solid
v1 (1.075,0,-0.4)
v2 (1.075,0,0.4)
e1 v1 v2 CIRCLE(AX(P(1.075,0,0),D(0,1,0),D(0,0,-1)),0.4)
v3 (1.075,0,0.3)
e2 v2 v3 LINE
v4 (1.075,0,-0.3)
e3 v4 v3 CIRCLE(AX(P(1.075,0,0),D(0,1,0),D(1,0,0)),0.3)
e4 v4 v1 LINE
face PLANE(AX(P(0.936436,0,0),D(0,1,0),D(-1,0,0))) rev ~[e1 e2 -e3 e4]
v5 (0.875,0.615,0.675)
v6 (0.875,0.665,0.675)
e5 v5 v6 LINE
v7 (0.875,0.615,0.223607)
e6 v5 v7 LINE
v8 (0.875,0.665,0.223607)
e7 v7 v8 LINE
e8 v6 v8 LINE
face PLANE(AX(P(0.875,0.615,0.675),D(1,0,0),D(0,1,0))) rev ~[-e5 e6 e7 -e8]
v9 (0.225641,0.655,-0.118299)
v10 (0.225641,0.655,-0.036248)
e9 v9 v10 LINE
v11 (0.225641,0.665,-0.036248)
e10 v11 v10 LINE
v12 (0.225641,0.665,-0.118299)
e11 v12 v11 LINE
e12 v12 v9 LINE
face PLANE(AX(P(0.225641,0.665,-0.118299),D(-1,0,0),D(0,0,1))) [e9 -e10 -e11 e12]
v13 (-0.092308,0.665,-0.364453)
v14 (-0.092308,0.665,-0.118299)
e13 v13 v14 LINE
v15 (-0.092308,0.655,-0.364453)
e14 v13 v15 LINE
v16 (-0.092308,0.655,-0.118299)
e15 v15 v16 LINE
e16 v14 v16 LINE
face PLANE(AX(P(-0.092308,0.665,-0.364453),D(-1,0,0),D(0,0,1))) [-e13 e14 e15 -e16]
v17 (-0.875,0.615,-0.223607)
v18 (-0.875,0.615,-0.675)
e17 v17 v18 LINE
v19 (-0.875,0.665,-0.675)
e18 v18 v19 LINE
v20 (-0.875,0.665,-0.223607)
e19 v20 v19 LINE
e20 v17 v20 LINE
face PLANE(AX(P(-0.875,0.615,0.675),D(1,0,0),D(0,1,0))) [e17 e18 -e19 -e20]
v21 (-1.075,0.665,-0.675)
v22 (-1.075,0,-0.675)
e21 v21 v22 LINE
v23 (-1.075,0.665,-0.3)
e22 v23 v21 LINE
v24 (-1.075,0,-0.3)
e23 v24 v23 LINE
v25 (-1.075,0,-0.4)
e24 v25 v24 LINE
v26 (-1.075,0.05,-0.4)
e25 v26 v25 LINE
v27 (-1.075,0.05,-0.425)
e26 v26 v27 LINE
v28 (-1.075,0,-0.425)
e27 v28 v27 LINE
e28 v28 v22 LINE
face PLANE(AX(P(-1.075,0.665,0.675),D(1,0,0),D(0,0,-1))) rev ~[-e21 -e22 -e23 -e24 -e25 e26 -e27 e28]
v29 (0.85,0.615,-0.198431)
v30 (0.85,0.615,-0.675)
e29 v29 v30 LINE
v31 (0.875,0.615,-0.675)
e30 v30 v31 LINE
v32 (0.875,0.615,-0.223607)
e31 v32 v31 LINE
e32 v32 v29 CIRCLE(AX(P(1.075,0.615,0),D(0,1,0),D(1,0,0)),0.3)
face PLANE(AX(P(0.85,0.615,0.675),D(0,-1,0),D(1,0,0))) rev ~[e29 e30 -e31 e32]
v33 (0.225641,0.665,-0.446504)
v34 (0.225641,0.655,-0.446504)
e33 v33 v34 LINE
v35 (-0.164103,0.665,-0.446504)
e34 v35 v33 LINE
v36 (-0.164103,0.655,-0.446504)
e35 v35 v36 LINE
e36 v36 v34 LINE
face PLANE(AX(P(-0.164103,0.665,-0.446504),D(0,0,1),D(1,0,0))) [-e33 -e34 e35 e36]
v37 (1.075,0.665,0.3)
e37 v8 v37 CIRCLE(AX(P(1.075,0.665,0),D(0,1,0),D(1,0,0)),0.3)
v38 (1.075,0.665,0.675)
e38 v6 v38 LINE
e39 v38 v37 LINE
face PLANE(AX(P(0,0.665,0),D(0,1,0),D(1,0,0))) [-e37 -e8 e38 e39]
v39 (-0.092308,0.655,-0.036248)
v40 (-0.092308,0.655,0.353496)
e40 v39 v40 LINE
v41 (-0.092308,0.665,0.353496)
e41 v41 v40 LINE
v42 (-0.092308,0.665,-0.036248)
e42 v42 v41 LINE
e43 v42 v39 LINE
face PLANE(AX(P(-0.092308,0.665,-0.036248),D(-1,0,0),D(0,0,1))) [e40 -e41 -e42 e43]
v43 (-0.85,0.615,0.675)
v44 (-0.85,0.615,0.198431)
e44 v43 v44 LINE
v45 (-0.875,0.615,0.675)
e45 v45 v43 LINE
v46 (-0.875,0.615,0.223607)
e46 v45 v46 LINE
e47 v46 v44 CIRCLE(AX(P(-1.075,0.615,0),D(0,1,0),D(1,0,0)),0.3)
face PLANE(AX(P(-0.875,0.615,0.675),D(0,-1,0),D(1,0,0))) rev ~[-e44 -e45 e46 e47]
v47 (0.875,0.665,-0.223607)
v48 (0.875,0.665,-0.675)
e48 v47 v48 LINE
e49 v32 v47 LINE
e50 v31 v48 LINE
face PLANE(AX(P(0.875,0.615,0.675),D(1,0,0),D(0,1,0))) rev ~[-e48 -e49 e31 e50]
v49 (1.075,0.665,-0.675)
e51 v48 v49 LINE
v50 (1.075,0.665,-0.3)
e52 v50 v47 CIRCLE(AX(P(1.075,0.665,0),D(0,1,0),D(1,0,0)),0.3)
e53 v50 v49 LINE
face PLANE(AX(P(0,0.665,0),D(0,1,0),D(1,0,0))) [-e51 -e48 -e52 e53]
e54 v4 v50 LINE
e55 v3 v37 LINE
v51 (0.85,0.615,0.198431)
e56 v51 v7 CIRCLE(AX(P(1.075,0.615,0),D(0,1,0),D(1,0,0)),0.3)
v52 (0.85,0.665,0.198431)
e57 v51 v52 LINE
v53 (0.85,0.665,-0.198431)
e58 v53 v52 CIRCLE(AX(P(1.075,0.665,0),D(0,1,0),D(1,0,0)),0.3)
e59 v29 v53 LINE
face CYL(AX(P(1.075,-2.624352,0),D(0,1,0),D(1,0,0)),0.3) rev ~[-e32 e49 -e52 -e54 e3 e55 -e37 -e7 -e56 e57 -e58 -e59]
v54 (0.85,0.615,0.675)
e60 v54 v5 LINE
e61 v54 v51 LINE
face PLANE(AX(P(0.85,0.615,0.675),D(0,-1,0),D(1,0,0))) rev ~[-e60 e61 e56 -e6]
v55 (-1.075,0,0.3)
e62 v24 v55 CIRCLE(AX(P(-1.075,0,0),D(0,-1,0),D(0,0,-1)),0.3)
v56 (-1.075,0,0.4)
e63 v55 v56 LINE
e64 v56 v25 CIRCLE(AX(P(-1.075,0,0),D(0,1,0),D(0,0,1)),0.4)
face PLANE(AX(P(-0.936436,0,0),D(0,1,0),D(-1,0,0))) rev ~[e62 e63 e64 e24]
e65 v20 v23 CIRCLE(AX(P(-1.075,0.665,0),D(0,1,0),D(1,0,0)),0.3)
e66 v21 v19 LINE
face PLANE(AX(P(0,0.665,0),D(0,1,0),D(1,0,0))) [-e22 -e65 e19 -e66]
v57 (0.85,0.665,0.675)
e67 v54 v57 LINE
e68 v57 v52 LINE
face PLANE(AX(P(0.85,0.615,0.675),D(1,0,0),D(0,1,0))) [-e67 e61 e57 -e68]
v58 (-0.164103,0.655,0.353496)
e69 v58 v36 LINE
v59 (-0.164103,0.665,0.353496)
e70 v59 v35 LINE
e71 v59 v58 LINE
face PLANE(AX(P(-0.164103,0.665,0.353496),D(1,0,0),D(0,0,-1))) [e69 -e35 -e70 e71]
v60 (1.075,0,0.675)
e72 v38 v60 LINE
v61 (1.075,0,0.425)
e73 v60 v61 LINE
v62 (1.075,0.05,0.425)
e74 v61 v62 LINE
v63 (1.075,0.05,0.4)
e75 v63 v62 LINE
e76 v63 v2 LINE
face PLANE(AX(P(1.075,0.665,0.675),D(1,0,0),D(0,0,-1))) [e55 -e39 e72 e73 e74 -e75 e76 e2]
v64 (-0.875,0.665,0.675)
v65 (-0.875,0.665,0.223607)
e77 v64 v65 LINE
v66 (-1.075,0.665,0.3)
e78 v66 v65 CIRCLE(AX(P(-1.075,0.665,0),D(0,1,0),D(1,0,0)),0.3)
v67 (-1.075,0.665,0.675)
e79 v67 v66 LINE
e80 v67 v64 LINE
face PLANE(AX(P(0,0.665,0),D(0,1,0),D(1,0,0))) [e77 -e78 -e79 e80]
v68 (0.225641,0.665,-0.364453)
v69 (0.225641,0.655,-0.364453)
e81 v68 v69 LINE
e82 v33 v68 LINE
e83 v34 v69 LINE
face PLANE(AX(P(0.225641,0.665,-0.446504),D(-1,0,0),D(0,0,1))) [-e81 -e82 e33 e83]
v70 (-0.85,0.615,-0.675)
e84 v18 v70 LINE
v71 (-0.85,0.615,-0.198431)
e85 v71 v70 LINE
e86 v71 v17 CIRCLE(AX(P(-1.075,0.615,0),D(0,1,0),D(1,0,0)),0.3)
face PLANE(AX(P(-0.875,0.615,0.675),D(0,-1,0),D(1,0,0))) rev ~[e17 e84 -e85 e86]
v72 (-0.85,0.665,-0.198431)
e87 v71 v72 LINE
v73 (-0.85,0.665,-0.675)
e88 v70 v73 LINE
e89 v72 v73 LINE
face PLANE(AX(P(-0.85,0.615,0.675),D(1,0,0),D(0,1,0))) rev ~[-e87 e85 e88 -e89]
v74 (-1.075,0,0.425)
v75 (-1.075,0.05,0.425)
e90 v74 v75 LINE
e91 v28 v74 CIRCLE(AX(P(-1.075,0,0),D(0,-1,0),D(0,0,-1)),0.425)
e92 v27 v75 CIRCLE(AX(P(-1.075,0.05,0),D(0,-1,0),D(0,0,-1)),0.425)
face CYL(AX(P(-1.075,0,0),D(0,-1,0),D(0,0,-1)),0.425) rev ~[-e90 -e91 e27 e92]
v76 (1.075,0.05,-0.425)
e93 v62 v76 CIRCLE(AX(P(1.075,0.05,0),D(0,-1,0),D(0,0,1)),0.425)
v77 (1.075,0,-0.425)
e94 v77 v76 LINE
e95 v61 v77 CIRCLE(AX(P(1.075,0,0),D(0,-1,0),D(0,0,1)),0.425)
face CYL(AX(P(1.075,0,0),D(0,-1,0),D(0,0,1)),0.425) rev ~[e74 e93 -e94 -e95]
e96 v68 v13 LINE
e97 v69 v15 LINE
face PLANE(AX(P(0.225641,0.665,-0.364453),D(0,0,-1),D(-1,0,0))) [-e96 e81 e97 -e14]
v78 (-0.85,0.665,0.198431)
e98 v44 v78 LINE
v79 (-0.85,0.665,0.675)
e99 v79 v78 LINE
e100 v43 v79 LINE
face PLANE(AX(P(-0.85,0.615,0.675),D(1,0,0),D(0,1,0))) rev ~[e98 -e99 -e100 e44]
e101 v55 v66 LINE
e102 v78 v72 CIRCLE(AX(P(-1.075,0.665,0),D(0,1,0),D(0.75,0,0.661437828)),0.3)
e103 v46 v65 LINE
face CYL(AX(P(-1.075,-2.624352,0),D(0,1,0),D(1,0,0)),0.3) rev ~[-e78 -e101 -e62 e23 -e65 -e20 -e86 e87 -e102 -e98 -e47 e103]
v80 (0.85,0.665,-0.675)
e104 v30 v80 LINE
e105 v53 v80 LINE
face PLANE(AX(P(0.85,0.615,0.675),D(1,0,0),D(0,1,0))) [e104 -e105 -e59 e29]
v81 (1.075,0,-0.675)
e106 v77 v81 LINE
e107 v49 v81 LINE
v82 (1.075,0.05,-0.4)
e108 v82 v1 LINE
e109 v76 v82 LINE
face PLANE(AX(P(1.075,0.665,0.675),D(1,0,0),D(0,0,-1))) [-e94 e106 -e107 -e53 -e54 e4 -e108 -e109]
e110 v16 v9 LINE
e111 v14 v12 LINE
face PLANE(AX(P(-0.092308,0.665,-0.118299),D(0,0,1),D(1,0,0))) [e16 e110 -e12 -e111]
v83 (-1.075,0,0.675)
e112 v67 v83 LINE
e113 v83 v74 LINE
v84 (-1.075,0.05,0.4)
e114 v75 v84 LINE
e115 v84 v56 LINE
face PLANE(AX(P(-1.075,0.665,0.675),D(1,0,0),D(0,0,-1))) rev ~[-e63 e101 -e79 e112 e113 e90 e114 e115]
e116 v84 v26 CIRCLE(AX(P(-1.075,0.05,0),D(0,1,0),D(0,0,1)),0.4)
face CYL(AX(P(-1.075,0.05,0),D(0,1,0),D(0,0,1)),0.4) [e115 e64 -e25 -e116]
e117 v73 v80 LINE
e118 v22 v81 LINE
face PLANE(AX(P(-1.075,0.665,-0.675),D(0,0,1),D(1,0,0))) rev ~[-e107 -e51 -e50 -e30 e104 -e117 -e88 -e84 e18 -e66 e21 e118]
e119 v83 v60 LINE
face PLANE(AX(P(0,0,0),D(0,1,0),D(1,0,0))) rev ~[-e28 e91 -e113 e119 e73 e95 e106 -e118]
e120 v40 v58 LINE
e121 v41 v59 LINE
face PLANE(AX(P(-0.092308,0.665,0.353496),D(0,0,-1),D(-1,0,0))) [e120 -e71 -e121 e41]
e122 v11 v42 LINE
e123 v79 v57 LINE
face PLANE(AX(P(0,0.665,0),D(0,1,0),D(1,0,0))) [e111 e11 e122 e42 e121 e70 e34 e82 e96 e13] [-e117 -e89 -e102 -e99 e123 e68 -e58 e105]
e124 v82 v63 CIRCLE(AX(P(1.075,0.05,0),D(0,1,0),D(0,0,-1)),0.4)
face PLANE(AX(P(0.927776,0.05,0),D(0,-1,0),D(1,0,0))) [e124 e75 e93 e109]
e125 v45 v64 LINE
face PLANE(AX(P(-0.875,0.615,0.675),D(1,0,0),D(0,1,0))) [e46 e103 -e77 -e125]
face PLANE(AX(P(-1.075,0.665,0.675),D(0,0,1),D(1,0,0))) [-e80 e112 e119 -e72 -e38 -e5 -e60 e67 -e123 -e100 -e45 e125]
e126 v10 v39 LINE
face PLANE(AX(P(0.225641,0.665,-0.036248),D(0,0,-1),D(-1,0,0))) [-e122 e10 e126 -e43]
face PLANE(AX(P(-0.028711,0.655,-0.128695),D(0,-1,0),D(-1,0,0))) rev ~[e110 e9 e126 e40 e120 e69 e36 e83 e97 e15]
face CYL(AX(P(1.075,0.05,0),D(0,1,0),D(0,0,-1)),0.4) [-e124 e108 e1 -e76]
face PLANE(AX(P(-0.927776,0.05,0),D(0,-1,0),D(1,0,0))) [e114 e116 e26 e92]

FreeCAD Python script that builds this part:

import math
import FreeCAD as App
import Part
import Sketcher
Q = App.Units.Quantity

doc = App.newDocument("Part")
body = doc.addObject("PartDesign::Body", "Body")

# Sketch on XZ plane
sketch1 = body.newObject("Sketcher::SketchObject", "Sketch")
sketch1.AttachmentSupport = (doc.getObject("XZ_Plane"), [""])
sketch1.MapMode = "FlatFace"
sketch1.AttachmentOffset = App.Placement(App.Vector(0, 0, -0.665), App.Rotation())
sketch1.addGeometry(Part.LineSegment(App.Vector(-1.1, -0.7, 0), App.Vector(-1.1, 0.7, 0)), False)
sketch1.addGeometry(Part.LineSegment(App.Vector(-1.1, 0.7, 0), App.Vector(1.1, 0.7, 0)), False)
sketch1.addGeometry(Part.LineSegment(App.Vector(1.1, 0.7, 0), App.Vector(1.1, -0.7, 0)), False)
sketch1.addGeometry(Part.LineSegment(App.Vector(1.1, -0.7, 0), App.Vector(-1.1, -0.7, 0)), False)
sketch1.addConstraint(Sketcher.Constraint("Coincident", 0, 2, 1, 1))
sketch1.addConstraint(Sketcher.Constraint("Coincident", 1, 2, 2, 1))
sketch1.addConstraint(Sketcher.Constraint("Coincident", 2, 2, 3, 1))
sketch1.addConstraint(Sketcher.Constraint("Coincident", 3, 2, 0, 1))
sketch1.addConstraint(Sketcher.Constraint("Vertical", 0))
sketch1.addConstraint(Sketcher.Constraint("Horizontal", 1))
sketch1.addConstraint(Sketcher.Constraint("Vertical", 2))
sketch1.addConstraint(Sketcher.Constraint("Horizontal", 3))
sketch1.addConstraint(Sketcher.Constraint("Symmetric", 0, 2, 2, 2, -1, 1))
sketch1.addConstraint(Sketcher.Constraint("DistanceX", 1, 1, 1, 2, Q("2.15 mm")))
sketch1.addConstraint(Sketcher.Constraint("DistanceY", 0, 1, 0, 2, Q("1.35 mm")))
pad1 = body.newObject("PartDesign::Pad", "Pad")
pad1.Profile = sketch1
pad1.Length = 0.665

# Sketch on XY plane
sketch2 = body.newObject("Sketcher::SketchObject", "Sketch001")
sketch2.AttachmentSupport = (doc.getObject("XY_Plane"), [""])
sketch2.MapMode = "FlatFace"
sketch2.AttachmentOffset = App.Placement(App.Vector(0, 0, 0.675), App.Rotation())
sketch2.addGeometry(Part.LineSegment(App.Vector(0.85, 0.665, 0), App.Vector(0.85, 0.615, 0)), False)
sketch2.addGeometry(Part.LineSegment(App.Vector(0.85, 0.615, 0), App.Vector(0.875, 0.615, 0)), False)
sketch2.addGeometry(Part.LineSegment(App.Vector(0.875, 0.615, 0), App.Vector(0.875, 0.665, 0)), False)
sketch2.addGeometry(Part.LineSegment(App.Vector(0.875, 0.665, 0), App.Vector(0.85, 0.665, 0)), False)
sketch2.addConstraint(Sketcher.Constraint("Coincident", 0, 2, 1, 1))
sketch2.addConstraint(Sketcher.Constraint("Coincident", 1, 2, 2, 1))
sketch2.addConstraint(Sketcher.Constraint("Coincident", 2, 2, 3, 1))
sketch2.addConstraint(Sketcher.Constraint("Coincident", 3, 2, 0, 1))
sketch2.addConstraint(Sketcher.Constraint("Vertical", 0))
sketch2.addConstraint(Sketcher.Constraint("Horizontal", 1))
sketch2.addConstraint(Sketcher.Constraint("Vertical", 2))
sketch2.addConstraint(Sketcher.Constraint("Horizontal", 3))
sketch2.addConstraint(Sketcher.Constraint("DistanceY", 0, 2, 0, 1, Q("0.05 mm")))
sketch2.addConstraint(Sketcher.Constraint("DistanceX", 1, 1, 1, 2, Q("0.025 mm")))
sketch2.addConstraint(Sketcher.Constraint("DistanceX", -1, 1, 0, 2, Q("0.85 mm")))
sketch2.addConstraint(Sketcher.Constraint("DistanceY", -1, 1, 0, 2, Q("0.615 mm")))
pocket1 = body.newObject("PartDesign::Pocket", "Pocket")
pocket1.Profile = sketch2
pocket1.Type = "ThroughAll"

# Sketch on XY plane
sketch3 = body.newObject("Sketcher::SketchObject", "Sketch002")
sketch3.AttachmentSupport = (doc.getObject("XY_Plane"), [""])
sketch3.MapMode = "FlatFace"
sketch3.AttachmentOffset = App.Placement(App.Vector(0, 0, 0.675), App.Rotation())
sketch3.addGeometry(Part.LineSegment(App.Vector(-0.875, 0.665, 0), App.Vector(-0.875, 0.615, 0)), False)
sketch3.addGeometry(Part.LineSegment(App.Vector(-0.875, 0.615, 0), App.Vector(-0.85, 0.615, 0)), False)
sketch3.addGeometry(Part.LineSegment(App.Vector(-0.85, 0.615, 0), App.Vector(-0.85, 0.665, 0)), False)
sketch3.addGeometry(Part.LineSegment(App.Vector(-0.85, 0.665, 0), App.Vector(-0.875, 0.665, 0)), False)
sketch3.addConstraint(Sketcher.Constraint("Coincident", 0, 2, 1, 1))
sketch3.addConstraint(Sketcher.Constraint("Coincident", 1, 2, 2, 1))
sketch3.addConstraint(Sketcher.Constraint("Coincident", 2, 2, 3, 1))
sketch3.addConstraint(Sketcher.Constraint("Coincident", 3, 2, 0, 1))
sketch3.addConstraint(Sketcher.Constraint("Vertical", 0))
sketch3.addConstraint(Sketcher.Constraint("Horizontal", 1))
sketch3.addConstraint(Sketcher.Constraint("Vertical", 2))
sketch3.addConstraint(Sketcher.Constraint("Horizontal", 3))
sketch3.addConstraint(Sketcher.Constraint("DistanceY", 0, 2, 0, 1, Q("0.05 mm")))
sketch3.addConstraint(Sketcher.Constraint("DistanceX", 1, 1, 1, 2, Q("0.025 mm")))
sketch3.addConstraint(Sketcher.Constraint("DistanceX", 1, 2, -1, 1, Q("0.85 mm")))
sketch3.addConstraint(Sketcher.Constraint("DistanceY", -1, 1, 0, 2, Q("0.615 mm")))
pocket2 = body.newObject("PartDesign::Pocket", "Pocket001")
pocket2.Profile = sketch3
pocket2.Type = "ThroughAll"

# Sketch on XZ plane
sketch4 = body.newObject("Sketcher::SketchObject", "Sketch003")
sketch4.AttachmentSupport = (doc.getObject("XZ_Plane"), [""])
sketch4.MapMode = "FlatFace"
sketch4.addGeometry(Part.LineSegment(App.Vector(-1.07, 0.42, 0), App.Vector(-1.07, -0.42, 0)), False)
sketch4.addGeometry(Part.ArcOfCircle(Part.Circle(App.Vector(-1.07, 0, 0), App.Vector(0, 0, 1), 0.42), math.radians(-90), math.radians(90)), False)
sketch4.addConstraint(Sketcher.Constraint("Coincident", 0, 1, 1, 2))
sketch4.addConstraint(Sketcher.Constraint("Coincident", 1, 1, 0, 2))
sketch4.addConstraint(Sketcher.Constraint("Vertical", 0))
sketch4.addConstraint(Sketcher.Constraint("PointOnObject", 1, 3, -1))
sketch4.addConstraint(Sketcher.Constraint("Vertical", 1, 3, 0, 1))
sketch4.addConstraint(Sketcher.Constraint("Radius", 1, Q("0.425 mm")))
sketch4.addConstraint(Sketcher.Constraint("DistanceX", 1, 3, -1, 1, Q("1.075 mm")))
pocket3 = body.newObject("PartDesign::Pocket", "Pocket002")
pocket3.Profile = sketch4
pocket3.Length = 0.05

# Sketch on XZ plane
sketch5 = body.newObject("Sketcher::SketchObject", "Sketch004")
sketch5.AttachmentSupport = (doc.getObject("XZ_Plane"), [""])
sketch5.MapMode = "FlatFace"
sketch5.AttachmentOffset = App.Placement(App.Vector(0, 0, -0.05), App.Rotation())
sketch5.addGeometry(Part.LineSegment(App.Vector(-1.07, 0.4, 0), App.Vector(-1.07, -0.4, 0)), False)
sketch5.addGeometry(Part.ArcOfCircle(Part.Circle(App.Vector(-1.07, 0, 0), App.Vector(0, 0, 1), 0.4), math.radians(-90), math.radians(90)), False)
sketch5.addConstraint(Sketcher.Constraint("Coincident", 0, 1, 1, 2))
sketch5.addConstraint(Sketcher.Constraint("Coincident", 1, 1, 0, 2))
sketch5.addConstraint(Sketcher.Constraint("Vertical", 0))
sketch5.addConstraint(Sketcher.Constraint("PointOnObject", 1, 3, -1))
sketch5.addConstraint(Sketcher.Constraint("Vertical", 1, 3, 0, 1))
sketch5.addConstraint(Sketcher.Constraint("Radius", 1, Q("0.4 mm")))
sketch5.addConstraint(Sketcher.Constraint("DistanceX", 1, 3, -1, 1, Q("1.075 mm")))
pad2 = body.newObject("PartDesign::Pad", "Pad001")
pad2.Profile = sketch5
pad2.Length = 0.05

# Sketch on XZ plane
sketch6 = body.newObject("Sketcher::SketchObject", "Sketch005")
sketch6.AttachmentSupport = (doc.getObject("XZ_Plane"), [""])
sketch6.MapMode = "FlatFace"
sketch6.addGeometry(Part.LineSegment(App.Vector(1.07, -0.42, 0), App.Vector(1.07, 0.42, 0)), False)
sketch6.addGeometry(Part.ArcOfCircle(Part.Circle(App.Vector(1.07, 0, 0), App.Vector(0, 0, 1), 0.42), math.radians(90), math.radians(270)), False)
sketch6.addConstraint(Sketcher.Constraint("Coincident", 0, 1, 1, 2))
sketch6.addConstraint(Sketcher.Constraint("Coincident", 1, 1, 0, 2))
sketch6.addConstraint(Sketcher.Constraint("Vertical", 0))
sketch6.addConstraint(Sketcher.Constraint("PointOnObject", 1, 3, -1))
sketch6.addConstraint(Sketcher.Constraint("Vertical", 1, 3, 0, 1))
sketch6.addConstraint(Sketcher.Constraint("Radius", 1, Q("0.425 mm")))
sketch6.addConstraint(Sketcher.Constraint("DistanceX", -1, 1, 1, 3, Q("1.075 mm")))
pocket4 = body.newObject("PartDesign::Pocket", "Pocket003")
pocket4.Profile = sketch6
pocket4.Length = 0.05

# Sketch on XZ plane
sketch7 = body.newObject("Sketcher::SketchObject", "Sketch006")
sketch7.AttachmentSupport = (doc.getObject("XZ_Plane"), [""])
sketch7.MapMode = "FlatFace"
sketch7.AttachmentOffset = App.Placement(App.Vector(0, 0, -0.05), App.Rotation())
sketch7.addGeometry(Part.LineSegment(App.Vector(1.07, -0.4, 0), App.Vector(1.07, 0.4, 0)), False)
sketch7.addGeometry(Part.ArcOfCircle(Part.Circle(App.Vector(1.07, 0, 0), App.Vector(0, 0, 1), 0.4), math.radians(90), math.radians(270)), False)
sketch7.addConstraint(Sketcher.Constraint("Coincident", 0, 1, 1, 2))
sketch7.addConstraint(Sketcher.Constraint("Coincident", 1, 1, 0, 2))
sketch7.addConstraint(Sketcher.Constraint("Vertical", 0))
sketch7.addConstraint(Sketcher.Constraint("PointOnObject", 1, 3, -1))
sketch7.addConstraint(Sketcher.Constraint("Vertical", 1, 3, 0, 1))
sketch7.addConstraint(Sketcher.Constraint("Radius", 1, Q("0.4 mm")))
sketch7.addConstraint(Sketcher.Constraint("DistanceX", -1, 1, 1, 3, Q("1.075 mm")))
pad3 = body.newObject("PartDesign::Pad", "Pad002")
pad3.Profile = sketch7
pad3.Length = 0.05

# Sketch on XZ plane
sketch8 = body.newObject("Sketcher::SketchObject", "Sketch007")
sketch8.AttachmentSupport = (doc.getObject("XZ_Plane"), [""])
sketch8.MapMode = "FlatFace"
sketch8.addGeometry(Part.Circle(App.Vector(-1.07, 0, 0), App.Vector(0, 0, 1), 0.3), False)
sketch8.addGeometry(Part.Circle(App.Vector(1.07, 0, 0), App.Vector(0, 0, 1), 0.3), False)
sketch8.addConstraint(Sketcher.Constraint("Equal", 0, 1))
sketch8.addConstraint(Sketcher.Constraint("Symmetric", 0, 3, 1, 3, -1, 1))
sketch8.addConstraint(Sketcher.Constraint("PointOnObject", 0, 3, -1))
sketch8.addConstraint(Sketcher.Constraint("Diameter", 0, Q("0.6 mm")))
sketch8.addConstraint(Sketcher.Constraint("DistanceX", 0, 3, 1, 3, Q("2.15 mm")))
doc.recompute()
hole = body.newObject("PartDesign::Hole", "Hole")
hole.Profile = sketch8
hole.ThreadType = "None"
hole.Diameter = 0.6
hole.DepthType = "ThroughAll"

# Sketch on XZ plane
sketch9 = body.newObject("Sketcher::SketchObject", "Sketch008")
sketch9.AttachmentSupport = (doc.getObject("XZ_Plane"), [""])
sketch9.MapMode = "FlatFace"
sketch9.AttachmentOffset = App.Placement(App.Vector(0, 0, -0.665), App.Rotation())
sketch9.addGeometry(Part.LineSegment(App.Vector(0.23, -0.45, 0), App.Vector(-0.16, -0.45, 0)), False)
sketch9.addGeometry(Part.LineSegment(App.Vector(-0.16, -0.45, 0), App.Vector(-0.16, 0.35, 0)), False)
sketch9.addGeometry(Part.LineSegment(App.Vector(-0.16, 0.35, 0), App.Vector(-0.09, 0.35, 0)), False)
sketch9.addGeometry(Part.LineSegment(App.Vector(-0.09, 0.35, 0), App.Vector(-0.09, -0.04, 0)), False)
sketch9.addGeometry(Part.LineSegment(App.Vector(-0.09, -0.04, 0), App.Vector(0.23, -0.04, 0)), False)
sketch9.addGeometry(Part.LineSegment(App.Vector(0.23, -0.04, 0), App.Vector(0.23, -0.12, 0)), False)
sketch9.addGeometry(Part.LineSegment(App.Vector(0.23, -0.12, 0), App.Vector(-0.09, -0.12, 0)), False)
sketch9.addGeometry(Part.LineSegment(App.Vector(-0.09, -0.12, 0), App.Vector(-0.09, -0.36, 0)), False)
sketch9.addGeometry(Part.LineSegment(App.Vector(-0.09, -0.36, 0), App.Vector(0.23, -0.36, 0)), False)
sketch9.addGeometry(Part.LineSegment(App.Vector(0.23, -0.36, 0), App.Vector(0.23, -0.45, 0)), False)
sketch9.addConstraint(Sketcher.Constraint("Coincident", 0, 2, 1, 1))
sketch9.addConstraint(Sketcher.Constraint("Coincident", 1, 2, 2, 1))
sketch9.addConstraint(Sketcher.Constraint("Coincident", 2, 2, 3, 1))
sketch9.addConstraint(Sketcher.Constraint("Coincident", 3, 2, 4, 1))
sketch9.addConstraint(Sketcher.Constraint("Coincident", 4, 2, 5, 1))
sketch9.addConstraint(Sketcher.Constraint("Coincident", 5, 2, 6, 1))
sketch9.addConstraint(Sketcher.Constraint("Coincident", 6, 2, 7, 1))
sketch9.addConstraint(Sketcher.Constraint("Coincident", 7, 2, 8, 1))
sketch9.addConstraint(Sketcher.Constraint("Coincident", 8, 2, 9, 1))
sketch9.addConstraint(Sketcher.Constraint("Coincident", 9, 2, 0, 1))
sketch9.addConstraint(Sketcher.Constraint("Horizontal", 0))
sketch9.addConstraint(Sketcher.Constraint("Vertical", 1))
sketch9.addConstraint(Sketcher.Constraint("Horizontal", 2))
sketch9.addConstraint(Sketcher.Constraint("Vertical", 3))
sketch9.addConstraint(Sketcher.Constraint("Horizontal", 4))
sketch9.addConstraint(Sketcher.Constraint("Vertical", 5))
sketch9.addConstraint(Sketcher.Constraint("Horizontal", 6))
sketch9.addConstraint(Sketcher.Constraint("Vertical", 7))
sketch9.addConstraint(Sketcher.Constraint("Horizontal", 8))
sketch9.addConstraint(Sketcher.Constraint("Vertical", 9))
sketch9.addConstraint(Sketcher.Constraint("Vertical", 3, 2, 6, 2))
sketch9.addConstraint(Sketcher.Constraint("Vertical", 5, 2, 8, 2))
sketch9.addConstraint(Sketcher.Constraint("Equal", 0, 3))
sketch9.addConstraint(Sketcher.Constraint("Equal", 5, 9))
sketch9.addConstraint(Sketcher.Constraint("DistanceY", 1, 1, 1, 2, Q("0.8 mm")))
sketch9.addConstraint(Sketcher.Constraint("DistanceX", 4, 1, 4, 2, Q("0.317949 mm")))
sketch9.addConstraint(Sketcher.Constraint("DistanceY", 5, 2, 5, 1, Q("0.082051 mm")))
sketch9.addConstraint(Sketcher.Constraint("DistanceY", 5, 2, -1, 1, Q("0.118299 mm")))
sketch9.addConstraint(Sketcher.Constraint("DistanceX", 0, 2, 0, 1, Q("0.389744 mm")))
sketch9.addConstraint(Sketcher.Constraint("DistanceX", -1, 1, 4, 2, Q("0.225641 mm")))
pocket5 = body.newObject("PartDesign::Pocket", "Pocket004")
pocket5.Profile = sketch9
pocket5.Length = 0.01
pocket5.Reversed = True

doc.recompute()
